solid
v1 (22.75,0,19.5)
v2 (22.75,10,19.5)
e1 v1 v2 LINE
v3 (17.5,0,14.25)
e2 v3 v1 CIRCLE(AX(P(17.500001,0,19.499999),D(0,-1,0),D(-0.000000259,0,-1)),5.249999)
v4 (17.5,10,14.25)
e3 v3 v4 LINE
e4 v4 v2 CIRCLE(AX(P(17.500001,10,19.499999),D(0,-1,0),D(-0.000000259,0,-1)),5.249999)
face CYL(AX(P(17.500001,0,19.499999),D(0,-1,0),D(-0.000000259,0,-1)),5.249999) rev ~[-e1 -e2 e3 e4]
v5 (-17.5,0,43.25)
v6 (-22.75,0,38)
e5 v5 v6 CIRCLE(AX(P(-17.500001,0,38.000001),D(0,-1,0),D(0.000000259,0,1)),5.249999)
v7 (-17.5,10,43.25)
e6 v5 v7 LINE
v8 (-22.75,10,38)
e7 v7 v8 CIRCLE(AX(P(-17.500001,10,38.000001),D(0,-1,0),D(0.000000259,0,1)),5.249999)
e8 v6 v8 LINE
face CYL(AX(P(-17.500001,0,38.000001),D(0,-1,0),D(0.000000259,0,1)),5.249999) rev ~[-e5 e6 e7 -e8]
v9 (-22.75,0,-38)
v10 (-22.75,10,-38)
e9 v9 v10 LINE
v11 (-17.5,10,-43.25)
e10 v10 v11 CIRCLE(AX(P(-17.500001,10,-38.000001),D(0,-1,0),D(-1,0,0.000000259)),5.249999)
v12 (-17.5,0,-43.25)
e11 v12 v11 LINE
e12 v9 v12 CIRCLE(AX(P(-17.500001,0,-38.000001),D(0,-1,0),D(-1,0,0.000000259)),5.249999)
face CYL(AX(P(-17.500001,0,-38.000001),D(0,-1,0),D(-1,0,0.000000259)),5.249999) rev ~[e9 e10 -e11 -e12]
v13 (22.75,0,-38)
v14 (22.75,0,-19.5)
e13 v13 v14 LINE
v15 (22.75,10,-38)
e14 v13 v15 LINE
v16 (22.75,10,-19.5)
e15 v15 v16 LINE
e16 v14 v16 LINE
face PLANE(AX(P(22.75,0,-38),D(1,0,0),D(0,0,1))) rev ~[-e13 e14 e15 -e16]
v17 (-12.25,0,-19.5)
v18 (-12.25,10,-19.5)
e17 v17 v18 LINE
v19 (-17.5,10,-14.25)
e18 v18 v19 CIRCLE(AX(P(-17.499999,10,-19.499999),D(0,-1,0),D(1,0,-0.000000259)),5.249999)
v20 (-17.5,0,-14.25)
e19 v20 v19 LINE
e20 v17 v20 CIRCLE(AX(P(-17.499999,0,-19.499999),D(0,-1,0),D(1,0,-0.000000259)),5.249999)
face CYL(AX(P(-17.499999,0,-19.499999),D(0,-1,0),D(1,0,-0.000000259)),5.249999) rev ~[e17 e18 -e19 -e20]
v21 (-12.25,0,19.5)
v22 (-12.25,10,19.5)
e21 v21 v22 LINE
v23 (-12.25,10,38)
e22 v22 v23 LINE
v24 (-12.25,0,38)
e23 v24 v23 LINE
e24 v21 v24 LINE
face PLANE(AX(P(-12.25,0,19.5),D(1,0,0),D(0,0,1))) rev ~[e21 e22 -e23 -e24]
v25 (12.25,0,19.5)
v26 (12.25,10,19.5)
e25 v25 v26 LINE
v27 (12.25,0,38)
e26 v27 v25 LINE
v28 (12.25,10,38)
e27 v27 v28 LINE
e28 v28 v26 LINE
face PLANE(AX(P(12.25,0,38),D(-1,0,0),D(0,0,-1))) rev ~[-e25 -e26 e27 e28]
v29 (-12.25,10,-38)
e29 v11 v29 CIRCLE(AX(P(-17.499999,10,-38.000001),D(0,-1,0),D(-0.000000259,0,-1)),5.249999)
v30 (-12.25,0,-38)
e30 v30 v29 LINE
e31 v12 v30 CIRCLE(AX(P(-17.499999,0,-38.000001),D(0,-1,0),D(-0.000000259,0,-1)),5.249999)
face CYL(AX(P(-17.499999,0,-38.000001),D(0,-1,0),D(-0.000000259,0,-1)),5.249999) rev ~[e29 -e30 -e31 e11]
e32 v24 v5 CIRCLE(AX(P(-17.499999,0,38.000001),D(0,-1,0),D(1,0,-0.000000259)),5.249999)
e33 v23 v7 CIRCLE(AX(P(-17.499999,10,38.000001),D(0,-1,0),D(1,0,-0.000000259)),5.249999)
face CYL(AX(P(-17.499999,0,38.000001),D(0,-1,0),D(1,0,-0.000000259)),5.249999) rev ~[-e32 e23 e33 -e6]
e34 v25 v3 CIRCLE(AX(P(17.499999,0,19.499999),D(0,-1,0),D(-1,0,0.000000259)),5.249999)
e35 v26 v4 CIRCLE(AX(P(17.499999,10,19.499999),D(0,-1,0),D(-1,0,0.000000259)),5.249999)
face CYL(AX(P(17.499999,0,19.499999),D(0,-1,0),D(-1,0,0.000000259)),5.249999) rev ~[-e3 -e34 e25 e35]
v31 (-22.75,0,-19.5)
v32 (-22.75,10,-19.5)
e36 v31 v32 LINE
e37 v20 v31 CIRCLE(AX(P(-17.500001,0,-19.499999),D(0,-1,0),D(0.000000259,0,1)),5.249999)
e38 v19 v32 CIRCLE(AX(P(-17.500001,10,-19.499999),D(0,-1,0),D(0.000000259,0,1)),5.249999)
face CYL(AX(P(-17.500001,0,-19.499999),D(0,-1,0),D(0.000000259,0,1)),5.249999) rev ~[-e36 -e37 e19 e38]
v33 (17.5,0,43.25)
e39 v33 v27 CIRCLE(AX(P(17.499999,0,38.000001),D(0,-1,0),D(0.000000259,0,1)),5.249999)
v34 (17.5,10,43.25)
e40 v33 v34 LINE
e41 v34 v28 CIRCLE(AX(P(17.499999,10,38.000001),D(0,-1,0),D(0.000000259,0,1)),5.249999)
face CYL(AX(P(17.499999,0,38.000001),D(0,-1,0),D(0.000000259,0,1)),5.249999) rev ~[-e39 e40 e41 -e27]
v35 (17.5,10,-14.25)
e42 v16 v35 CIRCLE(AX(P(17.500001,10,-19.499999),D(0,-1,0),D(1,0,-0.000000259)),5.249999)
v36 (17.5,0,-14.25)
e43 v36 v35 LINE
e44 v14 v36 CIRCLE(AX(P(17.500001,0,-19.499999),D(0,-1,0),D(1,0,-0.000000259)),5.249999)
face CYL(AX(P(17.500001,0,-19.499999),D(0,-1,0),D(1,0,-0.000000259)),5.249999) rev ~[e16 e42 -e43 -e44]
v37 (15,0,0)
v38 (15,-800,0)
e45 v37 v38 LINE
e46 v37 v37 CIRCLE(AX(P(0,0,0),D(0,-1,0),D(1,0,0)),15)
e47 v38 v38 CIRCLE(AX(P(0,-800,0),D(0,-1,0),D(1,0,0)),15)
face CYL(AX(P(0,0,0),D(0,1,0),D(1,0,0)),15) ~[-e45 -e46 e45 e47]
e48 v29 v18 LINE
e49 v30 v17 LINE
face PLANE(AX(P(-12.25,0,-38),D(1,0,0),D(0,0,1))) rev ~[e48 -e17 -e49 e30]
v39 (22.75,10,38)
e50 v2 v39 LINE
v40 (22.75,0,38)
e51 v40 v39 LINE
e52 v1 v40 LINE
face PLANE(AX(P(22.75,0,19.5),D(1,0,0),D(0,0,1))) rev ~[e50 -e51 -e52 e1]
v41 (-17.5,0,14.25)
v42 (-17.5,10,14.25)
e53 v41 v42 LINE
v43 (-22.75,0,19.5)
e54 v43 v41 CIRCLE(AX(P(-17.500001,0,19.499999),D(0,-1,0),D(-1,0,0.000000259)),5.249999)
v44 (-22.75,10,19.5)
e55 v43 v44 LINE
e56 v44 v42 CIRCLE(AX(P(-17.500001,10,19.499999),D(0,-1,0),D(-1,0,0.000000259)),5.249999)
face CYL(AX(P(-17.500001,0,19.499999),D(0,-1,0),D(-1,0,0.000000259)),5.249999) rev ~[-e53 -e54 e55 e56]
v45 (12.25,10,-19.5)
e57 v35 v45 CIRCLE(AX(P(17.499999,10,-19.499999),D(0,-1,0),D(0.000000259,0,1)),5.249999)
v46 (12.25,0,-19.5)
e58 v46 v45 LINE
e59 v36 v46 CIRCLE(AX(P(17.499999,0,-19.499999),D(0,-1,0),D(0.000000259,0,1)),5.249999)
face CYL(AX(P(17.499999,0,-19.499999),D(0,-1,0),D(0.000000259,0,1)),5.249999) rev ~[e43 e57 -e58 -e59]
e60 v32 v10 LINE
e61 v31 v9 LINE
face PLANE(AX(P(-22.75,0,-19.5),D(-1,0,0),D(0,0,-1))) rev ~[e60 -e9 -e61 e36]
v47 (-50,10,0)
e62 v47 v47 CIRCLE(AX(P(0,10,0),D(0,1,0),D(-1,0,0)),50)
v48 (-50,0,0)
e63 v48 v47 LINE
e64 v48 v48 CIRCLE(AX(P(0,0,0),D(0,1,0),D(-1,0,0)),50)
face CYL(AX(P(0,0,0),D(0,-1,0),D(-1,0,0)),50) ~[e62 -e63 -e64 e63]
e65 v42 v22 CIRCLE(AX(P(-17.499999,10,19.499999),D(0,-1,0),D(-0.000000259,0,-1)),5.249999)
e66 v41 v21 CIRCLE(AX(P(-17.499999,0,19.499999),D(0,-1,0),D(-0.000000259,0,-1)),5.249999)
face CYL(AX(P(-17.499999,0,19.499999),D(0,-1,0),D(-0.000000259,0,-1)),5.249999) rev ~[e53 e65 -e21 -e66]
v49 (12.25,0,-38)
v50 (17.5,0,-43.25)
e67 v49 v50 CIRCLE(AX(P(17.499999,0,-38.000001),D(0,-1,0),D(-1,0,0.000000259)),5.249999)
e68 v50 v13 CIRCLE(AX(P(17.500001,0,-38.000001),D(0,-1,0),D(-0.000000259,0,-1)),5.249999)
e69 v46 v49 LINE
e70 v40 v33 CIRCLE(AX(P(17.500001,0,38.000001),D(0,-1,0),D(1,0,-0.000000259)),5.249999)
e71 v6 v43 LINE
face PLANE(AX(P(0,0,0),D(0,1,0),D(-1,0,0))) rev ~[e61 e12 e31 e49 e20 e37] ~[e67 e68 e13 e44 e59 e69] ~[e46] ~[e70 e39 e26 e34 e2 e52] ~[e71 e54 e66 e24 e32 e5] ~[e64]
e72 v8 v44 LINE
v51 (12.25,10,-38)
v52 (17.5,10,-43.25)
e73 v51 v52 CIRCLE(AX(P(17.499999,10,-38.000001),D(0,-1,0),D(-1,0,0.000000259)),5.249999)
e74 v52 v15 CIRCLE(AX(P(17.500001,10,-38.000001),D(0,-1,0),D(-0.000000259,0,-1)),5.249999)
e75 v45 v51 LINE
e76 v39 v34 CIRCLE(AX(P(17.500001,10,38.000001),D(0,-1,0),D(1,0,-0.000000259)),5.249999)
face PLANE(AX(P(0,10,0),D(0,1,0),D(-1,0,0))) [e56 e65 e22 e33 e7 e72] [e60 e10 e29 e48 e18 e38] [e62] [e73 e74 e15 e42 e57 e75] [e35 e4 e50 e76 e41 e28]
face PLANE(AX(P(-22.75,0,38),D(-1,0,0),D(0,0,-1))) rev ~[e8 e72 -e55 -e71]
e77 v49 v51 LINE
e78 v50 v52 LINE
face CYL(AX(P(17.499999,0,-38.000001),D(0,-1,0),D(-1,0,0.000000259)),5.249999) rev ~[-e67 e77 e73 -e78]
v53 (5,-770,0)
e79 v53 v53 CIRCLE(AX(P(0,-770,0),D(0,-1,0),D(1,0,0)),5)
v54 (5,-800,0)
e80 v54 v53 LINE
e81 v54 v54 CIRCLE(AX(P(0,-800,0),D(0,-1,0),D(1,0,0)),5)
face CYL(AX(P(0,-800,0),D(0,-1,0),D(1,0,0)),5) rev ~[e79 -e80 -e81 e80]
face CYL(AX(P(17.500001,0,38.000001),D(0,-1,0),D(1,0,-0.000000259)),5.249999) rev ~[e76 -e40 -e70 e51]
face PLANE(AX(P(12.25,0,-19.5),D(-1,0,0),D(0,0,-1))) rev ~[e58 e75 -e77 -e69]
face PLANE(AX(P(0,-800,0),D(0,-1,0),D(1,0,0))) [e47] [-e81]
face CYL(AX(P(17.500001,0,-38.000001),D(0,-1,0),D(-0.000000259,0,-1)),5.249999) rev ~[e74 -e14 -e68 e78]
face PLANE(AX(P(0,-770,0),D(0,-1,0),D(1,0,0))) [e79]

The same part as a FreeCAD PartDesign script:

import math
import FreeCAD as App
import Part
import Sketcher

doc = App.newDocument("Part")
body = doc.addObject("PartDesign::Body", "Body")

sketch1 = doc.addObject("Sketcher::SketchObject", "Sketch")
body.addObject(sketch1)
sketch1.AttachmentSupport = (doc.XZ_Plane, [""])
sketch1.MapMode = "FlatFace"
sketch1.addGeometry(Part.Circle(App.Vector(0, 0, 0), App.Vector(0, 0, 1), 15), False)
sketch1.addConstraint([
    Sketcher.Constraint("Coincident", 0, 3, -1, 1),
    Sketcher.Constraint("Diameter", 0, 30.0),
])
pad1 = doc.addObject("PartDesign::Pad", "Pad")
body.addObject(pad1)
pad1.Profile = sketch1
pad1.Length = 800

sketch2 = doc.addObject("Sketcher::SketchObject", "Sketch001")
body.addObject(sketch2)
sketch2.AttachmentSupport = (doc.XZ_Plane, [""])
sketch2.MapMode = "FlatFace"
sketch2.addGeometry([
    Part.Circle(App.Vector(0, 0, 0), App.Vector(0, 0, 1), 50),
    Part.ArcOfCircle(Part.Circle(App.Vector(18, -19, 0), App.Vector(0, 0, 1), 5), math.radians(0), math.radians(90)),
    Part.ArcOfCircle(Part.Circle(App.Vector(17, -19, 0), App.Vector(0, 0, 1), 5), math.radians(90), math.radians(180)),
    Part.LineSegment(App.Vector(12, -20, 0), App.Vector(12, -38, 0)),
    Part.ArcOfCircle(Part.Circle(App.Vector(17, -38, 0), App.Vector(0, 0, 1), 5), math.radians(180), math.radians(270)),
    Part.ArcOfCircle(Part.Circle(App.Vector(18, -38, 0), App.Vector(0, 0, 1), 5), math.radians(-90), math.radians(0)),
    Part.LineSegment(App.Vector(23, -38, 0), App.Vector(23, -20, 0)),
    Part.ArcOfCircle(Part.Circle(App.Vector(-17, -19, 0), App.Vector(0, 0, 1), 5), math.radians(0), math.radians(90)),
    Part.ArcOfCircle(Part.Circle(App.Vector(-18, -19, 0), App.Vector(0, 0, 1), 5), math.radians(90), math.radians(180)),
    Part.LineSegment(App.Vector(-23, -20, 0), App.Vector(-23, -38, 0)),
    Part.ArcOfCircle(Part.Circle(App.Vector(-18, -38, 0), App.Vector(0, 0, 1), 5), math.radians(180), math.radians(270)),
    Part.ArcOfCircle(Part.Circle(App.Vector(-17, -38, 0), App.Vector(0, 0, 1), 5), math.radians(-90), math.radians(0)),
    Part.LineSegment(App.Vector(-12, -38, 0), App.Vector(-12, -20, 0)),
    Part.ArcOfCircle(Part.Circle(App.Vector(18, 19, 0), App.Vector(0, 0, 1), 5), math.radians(-90), math.radians(0)),
    Part.LineSegment(App.Vector(23, 20, 0), App.Vector(23, 38, 0)),
    Part.ArcOfCircle(Part.Circle(App.Vector(18, 38, 0), App.Vector(0, 0, 1), 5), math.radians(0), math.radians(90)),
    Part.ArcOfCircle(Part.Circle(App.Vector(17, 38, 0), App.Vector(0, 0, 1), 5), math.radians(90), math.radians(180)),
    Part.LineSegment(App.Vector(12, 38, 0), App.Vector(12, 20, 0)),
    Part.ArcOfCircle(Part.Circle(App.Vector(17, 19, 0), App.Vector(0, 0, 1), 5), math.radians(180), math.radians(270)),
    Part.ArcOfCircle(Part.Circle(App.Vector(-17, 38, 0), App.Vector(0, 0, 1), 5), math.radians(0), math.radians(90)),
    Part.ArcOfCircle(Part.Circle(App.Vector(-18, 38, 0), App.Vector(0, 0, 1), 5), math.radians(90), math.radians(180)),
    Part.LineSegment(App.Vector(-23, 38, 0), App.Vector(-23, 20, 0)),
    Part.ArcOfCircle(Part.Circle(App.Vector(-18, 19, 0), App.Vector(0, 0, 1), 5), math.radians(180), math.radians(270)),
    Part.ArcOfCircle(Part.Circle(App.Vector(-17, 19, 0), App.Vector(0, 0, 1), 5), math.radians(-90), math.radians(0)),
    Part.LineSegment(App.Vector(-12, 20, 0), App.Vector(-12, 38, 0)),
], False)
sketch2.addConstraint([
    Sketcher.Constraint("Tangent", 1, 2, 2, 1),
    Sketcher.Constraint("Tangent", 2, 2, 3, 1),
    Sketcher.Constraint("Tangent", 3, 2, 4, 1),
    Sketcher.Constraint("Tangent", 4, 2, 5, 1),
    Sketcher.Constraint("Tangent", 5, 2, 6, 1),
    Sketcher.Constraint("Tangent", 6, 2, 1, 1),
    Sketcher.Constraint("Tangent", 7, 2, 8, 1),
    Sketcher.Constraint("Tangent", 8, 2, 9, 1),
    Sketcher.Constraint("Tangent", 9, 2, 10, 1),
    Sketcher.Constraint("Tangent", 10, 2, 11, 1),
    Sketcher.Constraint("Tangent", 11, 2, 12, 1),
    Sketcher.Constraint("Tangent", 12, 2, 7, 1),
    Sketcher.Constraint("Tangent", 13, 2, 14, 1),
    Sketcher.Constraint("Tangent", 14, 2, 15, 1),
    Sketcher.Constraint("Tangent", 15, 2, 16, 1),
    Sketcher.Constraint("Tangent", 16, 2, 17, 1),
    Sketcher.Constraint("Tangent", 17, 2, 18, 1),
    Sketcher.Constraint("Tangent", 18, 2, 13, 1),
    Sketcher.Constraint("Tangent", 19, 2, 20, 1),
    Sketcher.Constraint("Tangent", 20, 2, 21, 1),
    Sketcher.Constraint("Tangent", 21, 2, 22, 1),
    Sketcher.Constraint("Tangent", 22, 2, 23, 1),
    Sketcher.Constraint("Tangent", 23, 2, 24, 1),
    Sketcher.Constraint("Tangent", 24, 2, 19, 1),
    Sketcher.Constraint("Vertical", 3),
    Sketcher.Constraint("Vertical", 6),
    Sketcher.Constraint("Vertical", 9),
    Sketcher.Constraint("Vertical", 12),
    Sketcher.Constraint("Vertical", 14),
    Sketcher.Constraint("Vertical", 17),
    Sketcher.Constraint("Vertical", 21),
    Sketcher.Constraint("Vertical", 24),
    Sketcher.Constraint("Coincident", 0, 3, -1, 1),
    Sketcher.Constraint("Equal", 1, 2),
    Sketcher.Constraint("Equal", 2, 4),
    Sketcher.Constraint("Equal", 5, 7),
    Sketcher.Constraint("Equal", 7, 8),
    Sketcher.Constraint("Equal", 8, 10),
    Sketcher.Constraint("Equal", 11, 13),
    Sketcher.Constraint("Equal", 13, 15),
    Sketcher.Constraint("Equal", 15, 16),
    Sketcher.Constraint("Equal", 18, 19),
    Sketcher.Constraint("Equal", 19, 20),
    Sketcher.Constraint("Equal", 20, 22),
    Sketcher.Constraint("Symmetric", 7, 3, 13, 3, -1, 1),
    Sketcher.Constraint("Symmetric", 4, 3, 19, 3, -1, 1),
    Sketcher.Constraint("Symmetric", 10, 2, 15, 2, -1, 1),
    Sketcher.Constraint("Symmetric", 1, 2, 22, 2, -1, 1),
    Sketcher.Constraint("Symmetric", 1, 3, 7, 3, -2),
    Sketcher.Constraint("Symmetric", 4, 2, 10, 2, -2),
    Sketcher.Constraint("Vertical", 18, 3, 1, 2),
    Sketcher.Constraint("Vertical", 1, 2, 4, 2),
    Sketcher.Constraint("Vertical", 23, 3, 7, 2),
    Sketcher.Constraint("Vertical", 15, 2, 18, 2),
    Sketcher.Constraint("Vertical", 10, 2, 19, 2),
    Sketcher.Constraint("Diameter", 0, 100.0),
    Sketcher.Constraint("Radius", 1, 5.249999),
    Sketcher.Constraint("DistanceY", 3, 2, 3, 1, 18.5),
    Sketcher.Constraint("DistanceY", 4, 3, -1, 1, 38.000001),
    Sketcher.Constraint("DistanceX", 7, 3, 1, 3, 35.0),
])
pad2 = doc.addObject("PartDesign::Pad", "Pad001")
body.addObject(pad2)
pad2.Profile = sketch2
pad2.Length = 10
pad2.Reversed = True

sketch3 = doc.addObject("Sketcher::SketchObject", "Sketch002")
body.addObject(sketch3)
sketch3.AttachmentSupport = (doc.XZ_Plane, [""])
sketch3.MapMode = "FlatFace"
sketch3.AttachmentOffset = App.Placement(App.Vector(0, 0, 800), App.Rotation())
sketch3.addGeometry(Part.Circle(App.Vector(0, 0, 0), App.Vector(0, 0, 1), 5), False)
sketch3.addConstraint([
    Sketcher.Constraint("Coincident", 0, 3, -1, 1),
    Sketcher.Constraint("Diameter", 0, 10.0),
])
pocket1 = doc.addObject("PartDesign::Pocket", "Pocket")
body.addObject(pocket1)
pocket1.Profile = sketch3
pocket1.Length = 30

doc.recompute()
